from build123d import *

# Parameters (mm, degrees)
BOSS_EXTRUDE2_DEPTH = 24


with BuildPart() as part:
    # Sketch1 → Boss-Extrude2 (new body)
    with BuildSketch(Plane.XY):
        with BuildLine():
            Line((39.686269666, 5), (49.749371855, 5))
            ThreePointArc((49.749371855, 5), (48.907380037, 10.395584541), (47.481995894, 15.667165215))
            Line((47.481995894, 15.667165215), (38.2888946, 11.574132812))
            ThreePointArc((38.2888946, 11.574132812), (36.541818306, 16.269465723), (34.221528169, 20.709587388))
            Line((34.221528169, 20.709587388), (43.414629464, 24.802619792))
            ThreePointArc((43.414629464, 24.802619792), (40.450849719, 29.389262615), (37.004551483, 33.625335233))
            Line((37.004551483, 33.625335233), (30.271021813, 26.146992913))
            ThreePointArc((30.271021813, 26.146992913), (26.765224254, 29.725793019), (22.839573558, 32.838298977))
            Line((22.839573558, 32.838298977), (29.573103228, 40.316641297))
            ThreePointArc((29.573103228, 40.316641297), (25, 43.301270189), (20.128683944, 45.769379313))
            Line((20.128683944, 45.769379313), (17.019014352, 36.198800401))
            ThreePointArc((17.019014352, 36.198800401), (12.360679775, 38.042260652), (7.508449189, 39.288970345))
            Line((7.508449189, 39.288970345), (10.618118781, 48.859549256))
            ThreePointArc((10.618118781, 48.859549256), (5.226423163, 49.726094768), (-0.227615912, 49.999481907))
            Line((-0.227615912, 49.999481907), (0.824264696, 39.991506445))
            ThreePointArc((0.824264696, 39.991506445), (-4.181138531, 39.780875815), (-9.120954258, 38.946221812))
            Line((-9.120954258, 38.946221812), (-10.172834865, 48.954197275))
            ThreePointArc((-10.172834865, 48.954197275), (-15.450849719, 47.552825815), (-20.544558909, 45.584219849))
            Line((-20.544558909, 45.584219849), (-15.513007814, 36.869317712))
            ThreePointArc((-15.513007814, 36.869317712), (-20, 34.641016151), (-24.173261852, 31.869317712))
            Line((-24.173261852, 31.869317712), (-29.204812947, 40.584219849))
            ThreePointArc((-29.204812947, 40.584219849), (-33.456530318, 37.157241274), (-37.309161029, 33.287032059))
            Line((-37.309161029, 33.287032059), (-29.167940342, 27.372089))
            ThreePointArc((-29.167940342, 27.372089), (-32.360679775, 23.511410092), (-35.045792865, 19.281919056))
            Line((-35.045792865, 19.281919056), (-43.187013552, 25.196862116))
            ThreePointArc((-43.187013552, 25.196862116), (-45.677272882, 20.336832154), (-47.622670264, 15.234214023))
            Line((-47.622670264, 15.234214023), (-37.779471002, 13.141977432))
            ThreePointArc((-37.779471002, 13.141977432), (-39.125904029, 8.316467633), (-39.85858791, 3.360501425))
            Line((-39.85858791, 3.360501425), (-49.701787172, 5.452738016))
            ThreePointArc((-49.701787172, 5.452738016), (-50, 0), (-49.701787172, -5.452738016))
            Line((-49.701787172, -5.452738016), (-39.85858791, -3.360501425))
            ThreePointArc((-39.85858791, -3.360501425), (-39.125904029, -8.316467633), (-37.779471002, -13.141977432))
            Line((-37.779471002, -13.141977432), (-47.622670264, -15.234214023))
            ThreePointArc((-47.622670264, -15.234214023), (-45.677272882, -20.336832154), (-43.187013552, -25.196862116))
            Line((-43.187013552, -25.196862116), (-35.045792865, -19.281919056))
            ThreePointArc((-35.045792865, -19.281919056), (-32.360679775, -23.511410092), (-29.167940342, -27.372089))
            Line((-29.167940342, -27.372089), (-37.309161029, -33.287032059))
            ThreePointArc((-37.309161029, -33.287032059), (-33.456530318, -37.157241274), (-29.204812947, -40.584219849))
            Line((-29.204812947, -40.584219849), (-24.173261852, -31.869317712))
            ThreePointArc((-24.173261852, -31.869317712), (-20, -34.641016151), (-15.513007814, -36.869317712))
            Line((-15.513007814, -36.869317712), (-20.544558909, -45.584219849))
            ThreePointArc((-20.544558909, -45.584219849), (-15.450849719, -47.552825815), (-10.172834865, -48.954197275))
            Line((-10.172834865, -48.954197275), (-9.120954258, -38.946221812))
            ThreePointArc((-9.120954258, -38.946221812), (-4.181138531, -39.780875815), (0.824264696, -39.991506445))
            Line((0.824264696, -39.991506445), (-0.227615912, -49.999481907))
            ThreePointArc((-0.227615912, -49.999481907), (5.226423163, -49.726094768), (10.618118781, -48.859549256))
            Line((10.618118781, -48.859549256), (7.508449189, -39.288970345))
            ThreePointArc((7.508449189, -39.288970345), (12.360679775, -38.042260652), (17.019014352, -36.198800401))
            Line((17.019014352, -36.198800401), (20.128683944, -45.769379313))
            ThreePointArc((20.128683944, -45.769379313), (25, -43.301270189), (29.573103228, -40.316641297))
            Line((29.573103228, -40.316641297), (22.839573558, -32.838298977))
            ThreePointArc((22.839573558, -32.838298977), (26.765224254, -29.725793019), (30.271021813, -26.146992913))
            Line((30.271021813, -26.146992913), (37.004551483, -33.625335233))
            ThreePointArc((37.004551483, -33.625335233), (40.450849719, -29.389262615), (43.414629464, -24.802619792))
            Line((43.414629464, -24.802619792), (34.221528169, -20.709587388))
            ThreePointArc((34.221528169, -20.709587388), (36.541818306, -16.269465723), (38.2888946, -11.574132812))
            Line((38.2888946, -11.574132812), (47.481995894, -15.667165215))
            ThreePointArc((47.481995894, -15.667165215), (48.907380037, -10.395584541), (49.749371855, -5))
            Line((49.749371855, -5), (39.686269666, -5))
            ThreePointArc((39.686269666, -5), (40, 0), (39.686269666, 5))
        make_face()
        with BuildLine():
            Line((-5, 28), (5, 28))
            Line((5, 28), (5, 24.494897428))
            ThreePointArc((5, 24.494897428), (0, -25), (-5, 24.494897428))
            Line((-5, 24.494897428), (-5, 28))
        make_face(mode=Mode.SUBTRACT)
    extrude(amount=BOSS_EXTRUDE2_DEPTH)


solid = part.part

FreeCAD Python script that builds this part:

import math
import FreeCAD as App
import Part
import Sketcher

V = App.Vector
Q = App.Units.Quantity

doc = App.newDocument("Part")
body = doc.addObject("PartDesign::Body", "Body")

# Sketch on XY plane
sketch1 = body.newObject("Sketcher::SketchObject", "Sketch")
sketch1.AttachmentSupport = (doc.getObject("XY_Plane"), [""])
sketch1.MapMode = "FlatFace"
sketch1.addGeometry([
    Part.LineSegment(V(39.7, 5, 0), V(49.7, 5, 0)),  # 0
    Part.ArcOfCircle(Part.Circle(V(0, 0, 0), V(0, 0, 1), 50), math.radians(5.74), math.radians(18.26)),  # 1
    Part.LineSegment(V(47.5, 15.7, 0), V(38.3, 11.6, 0)),  # 2
    Part.ArcOfCircle(Part.Circle(V(0, 0, 0), V(0, 0, 1), 40), math.radians(16.82), math.radians(31.18)),  # 3
    Part.LineSegment(V(34.2, 20.7, 0), V(43.4, 24.8, 0)),  # 4
    Part.ArcOfCircle(Part.Circle(V(0, 0, 0), V(0, 0, 1), 50), math.radians(29.74), math.radians(42.26)),  # 5
    Part.LineSegment(V(37, 33.6, 0), V(30.3, 26.1, 0)),  # 6
    Part.ArcOfCircle(Part.Circle(V(0, 0, 0), V(0, 0, 1), 40), math.radians(40.82), math.radians(55.18)),  # 7
    Part.LineSegment(V(22.8, 32.8, 0), V(29.6, 40.3, 0)),  # 8
    Part.ArcOfCircle(Part.Circle(V(0, 0, 0), V(0, 0, 1), 50), math.radians(53.74), math.radians(66.26)),  # 9
    Part.LineSegment(V(20.1, 45.8, 0), V(17, 36.2, 0)),  # 10
    Part.ArcOfCircle(Part.Circle(V(0, 0, 0), V(0, 0, 1), 40), math.radians(64.82), math.radians(79.18)),  # 11
    Part.LineSegment(V(7.5, 39.3, 0), V(10.6, 48.9, 0)),  # 12
    Part.ArcOfCircle(Part.Circle(V(0, 0, 0), V(0, 0, 1), 50), math.radians(77.74), math.radians(90.26)),  # 13
    Part.LineSegment(V(-0.2, 50, 0), V(0.8, 40, 0)),  # 14
    Part.ArcOfCircle(Part.Circle(V(0, 0, 0), V(0, 0, 1), 40), math.radians(88.82), math.radians(103.18)),  # 15
    Part.LineSegment(V(-9.1, 38.9, 0), V(-10.2, 49, 0)),  # 16
    Part.ArcOfCircle(Part.Circle(V(0, 0, 0), V(0, 0, 1), 50), math.radians(101.74), math.radians(114.26)),  # 17
    Part.LineSegment(V(-20.5, 45.6, 0), V(-15.5, 36.9, 0)),  # 18
    Part.ArcOfCircle(Part.Circle(V(0, 0, 0), V(0, 0, 1), 40), math.radians(112.82), math.radians(127.18)),  # 19
    Part.LineSegment(V(-24.2, 31.9, 0), V(-29.2, 40.6, 0)),  # 20
    Part.ArcOfCircle(Part.Circle(V(0, 0, 0), V(0, 0, 1), 50), math.radians(125.74), math.radians(138.26)),  # 21
    Part.LineSegment(V(-37.3, 33.3, 0), V(-29.2, 27.4, 0)),  # 22
    Part.ArcOfCircle(Part.Circle(V(0, 0, 0), V(0, 0, 1), 40), math.radians(136.82), math.radians(151.18)),  # 23
    Part.LineSegment(V(-35, 19.3, 0), V(-43.2, 25.2, 0)),  # 24
    Part.ArcOfCircle(Part.Circle(V(0, 0, 0), V(0, 0, 1), 50), math.radians(149.74), math.radians(162.26)),  # 25
    Part.LineSegment(V(-47.6, 15.2, 0), V(-37.8, 13.1, 0)),  # 26
    Part.ArcOfCircle(Part.Circle(V(0, 0, 0), V(0, 0, 1), 40), math.radians(160.82), math.radians(175.18)),  # 27
    Part.LineSegment(V(-39.9, 3.4, 0), V(-49.7, 5.5, 0)),  # 28
    Part.ArcOfCircle(Part.Circle(V(0, 0, 0), V(0, 0, 1), 50), math.radians(173.74), math.radians(186.26)),  # 29
    Part.LineSegment(V(-49.7, -5.5, 0), V(-39.9, -3.4, 0)),  # 30
    Part.ArcOfCircle(Part.Circle(V(0, 0, 0), V(0, 0, 1), 40), math.radians(-175.18), math.radians(-160.82)),  # 31
    Part.LineSegment(V(-37.8, -13.1, 0), V(-47.6, -15.2, 0)),  # 32
    Part.ArcOfCircle(Part.Circle(V(0, 0, 0), V(0, 0, 1), 50), math.radians(-162.26), math.radians(-149.74)),  # 33
    Part.LineSegment(V(-43.2, -25.2, 0), V(-35, -19.3, 0)),  # 34
    Part.ArcOfCircle(Part.Circle(V(0, 0, 0), V(0, 0, 1), 40), math.radians(-151.18), math.radians(-136.82)),  # 35
    Part.LineSegment(V(-29.2, -27.4, 0), V(-37.3, -33.3, 0)),  # 36
    Part.ArcOfCircle(Part.Circle(V(0, 0, 0), V(0, 0, 1), 50), math.radians(-138.26), math.radians(-125.74)),  # 37
    Part.LineSegment(V(-29.2, -40.6, 0), V(-24.2, -31.9, 0)),  # 38
    Part.ArcOfCircle(Part.Circle(V(0, 0, 0), V(0, 0, 1), 40), math.radians(-127.18), math.radians(-112.82)),  # 39
    Part.LineSegment(V(-15.5, -36.9, 0), V(-20.5, -45.6, 0)),  # 40
    Part.ArcOfCircle(Part.Circle(V(0, 0, 0), V(0, 0, 1), 50), math.radians(-114.26), math.radians(-101.74)),  # 41
    Part.LineSegment(V(-10.2, -49, 0), V(-9.1, -38.9, 0)),  # 42
    Part.ArcOfCircle(Part.Circle(V(0, 0, 0), V(0, 0, 1), 40), math.radians(-103.18), math.radians(-88.82)),  # 43
    Part.LineSegment(V(0.8, -40, 0), V(-0.2, -50, 0)),  # 44
    Part.ArcOfCircle(Part.Circle(V(0, 0, 0), V(0, 0, 1), 50), math.radians(-90.26), math.radians(-77.74)),  # 45
    Part.LineSegment(V(10.6, -48.9, 0), V(7.5, -39.3, 0)),  # 46
    Part.ArcOfCircle(Part.Circle(V(0, 0, 0), V(0, 0, 1), 40), math.radians(-79.18), math.radians(-64.82)),  # 47
    Part.LineSegment(V(17, -36.2, 0), V(20.1, -45.8, 0)),  # 48
    Part.ArcOfCircle(Part.Circle(V(0, 0, 0), V(0, 0, 1), 50), math.radians(-66.26), math.radians(-53.74)),  # 49
    Part.LineSegment(V(29.6, -40.3, 0), V(22.8, -32.8, 0)),  # 50
    Part.ArcOfCircle(Part.Circle(V(0, 0, 0), V(0, 0, 1), 40), math.radians(-55.18), math.radians(-40.82)),  # 51
    Part.LineSegment(V(30.3, -26.1, 0), V(37, -33.6, 0)),  # 52
    Part.ArcOfCircle(Part.Circle(V(0, 0, 0), V(0, 0, 1), 50), math.radians(-42.26), math.radians(-29.74)),  # 53
    Part.LineSegment(V(43.4, -24.8, 0), V(34.2, -20.7, 0)),  # 54
    Part.ArcOfCircle(Part.Circle(V(0, 0, 0), V(0, 0, 1), 40), math.radians(-31.18), math.radians(-16.82)),  # 55
    Part.LineSegment(V(38.3, -11.6, 0), V(47.5, -15.7, 0)),  # 56
    Part.ArcOfCircle(Part.Circle(V(0, 0, 0), V(0, 0, 1), 50), math.radians(-18.26), math.radians(-5.74)),  # 57
    Part.LineSegment(V(49.7, -5, 0), V(39.7, -5, 0)),  # 58
    Part.ArcOfCircle(Part.Circle(V(0, 0, 0), V(0, 0, 1), 40), math.radians(-7.18), math.radians(7.18)),  # 59
    Part.LineSegment(V(-5, 24.5, 0), V(-5, 28, 0)),  # 60
    Part.LineSegment(V(-5, 28, 0), V(5, 28, 0)),  # 61
    Part.LineSegment(V(5, 28, 0), V(5, 24.5, 0)),  # 62
    Part.ArcOfCircle(Part.Circle(V(0, 0, 0), V(0, 0, 1), 25), math.radians(102), math.radians(438)),  # 63
], False)
sketch1.addConstraint([
    Sketcher.Constraint("Coincident", 0, 2, 1, 1),
    Sketcher.Constraint("Coincident", 1, 2, 2, 1),
    Sketcher.Constraint("Coincident", 2, 2, 3, 1),
    Sketcher.Constraint("Coincident", 3, 2, 4, 1),
    Sketcher.Constraint("Coincident", 4, 2, 5, 1),
    Sketcher.Constraint("Coincident", 5, 2, 6, 1),
    Sketcher.Constraint("Coincident", 6, 2, 7, 1),
    Sketcher.Constraint("Coincident", 7, 2, 8, 1),
    Sketcher.Constraint("Coincident", 8, 2, 9, 1),
    Sketcher.Constraint("Coincident", 9, 2, 10, 1),
    Sketcher.Constraint("Coincident", 10, 2, 11, 1),
    Sketcher.Constraint("Coincident", 11, 2, 12, 1),
    Sketcher.Constraint("Coincident", 12, 2, 13, 1),
    Sketcher.Constraint("Coincident", 13, 2, 14, 1),
    Sketcher.Constraint("Coincident", 14, 2, 15, 1),
    Sketcher.Constraint("Coincident", 15, 2, 16, 1),
    Sketcher.Constraint("Coincident", 16, 2, 17, 1),
    Sketcher.Constraint("Coincident", 17, 2, 18, 1),
    Sketcher.Constraint("Coincident", 18, 2, 19, 1),
    Sketcher.Constraint("Coincident", 19, 2, 20, 1),
    Sketcher.Constraint("Coincident", 20, 2, 21, 1),
    Sketcher.Constraint("Coincident", 21, 2, 22, 1),
    Sketcher.Constraint("Coincident", 22, 2, 23, 1),
    Sketcher.Constraint("Coincident", 23, 2, 24, 1),
    Sketcher.Constraint("Coincident", 24, 2, 25, 1),
    Sketcher.Constraint("Coincident", 25, 2, 26, 1),
    Sketcher.Constraint("Coincident", 26, 2, 27, 1),
    Sketcher.Constraint("Coincident", 27, 2, 28, 1),
    Sketcher.Constraint("Coincident", 28, 2, 29, 1),
    Sketcher.Constraint("Coincident", 29, 2, 30, 1),
    Sketcher.Constraint("Coincident", 30, 2, 31, 1),
    Sketcher.Constraint("Coincident", 31, 2, 32, 1),
    Sketcher.Constraint("Coincident", 32, 2, 33, 1),
    Sketcher.Constraint("Coincident", 33, 2, 34, 1),
    Sketcher.Constraint("Coincident", 34, 2, 35, 1),
    Sketcher.Constraint("Coincident", 35, 2, 36, 1),
    Sketcher.Constraint("Coincident", 36, 2, 37, 1),
    Sketcher.Constraint("Coincident", 37, 2, 38, 1),
    Sketcher.Constraint("Coincident", 38, 2, 39, 1),
    Sketcher.Constraint("Coincident", 39, 2, 40, 1),
    Sketcher.Constraint("Coincident", 40, 2, 41, 1),
    Sketcher.Constraint("Coincident", 41, 2, 42, 1),
    Sketcher.Constraint("Coincident", 42, 2, 43, 1),
    Sketcher.Constraint("Coincident", 43, 2, 44, 1),
    Sketcher.Constraint("Coincident", 44, 2, 45, 1),
    Sketcher.Constraint("Coincident", 45, 2, 46, 1),
    Sketcher.Constraint("Coincident", 46, 2, 47, 1),
    Sketcher.Constraint("Coincident", 47, 2, 48, 1),
    Sketcher.Constraint("Coincident", 48, 2, 49, 1),
    Sketcher.Constraint("Coincident", 49, 2, 50, 1),
    Sketcher.Constraint("Coincident", 50, 2, 51, 1),
    Sketcher.Constraint("Coincident", 51, 2, 52, 1),
    Sketcher.Constraint("Coincident", 52, 2, 53, 1),
    Sketcher.Constraint("Coincident", 53, 2, 54, 1),
    Sketcher.Constraint("Coincident", 54, 2, 55, 1),
    Sketcher.Constraint("Coincident", 55, 2, 56, 1),
    Sketcher.Constraint("Coincident", 56, 2, 57, 1),
    Sketcher.Constraint("Coincident", 57, 2, 58, 1),
    Sketcher.Constraint("Coincident", 58, 2, 59, 1),
    Sketcher.Constraint("Coincident", 59, 2, 0, 1),
    Sketcher.Constraint("Coincident", 60, 2, 61, 1),
    Sketcher.Constraint("Coincident", 61, 2, 62, 1),
    Sketcher.Constraint("Coincident", 62, 2, 63, 2),
    Sketcher.Constraint("Coincident", 63, 1, 60, 1),
    Sketcher.Constraint("Horizontal", 0),
    Sketcher.Constraint("Horizontal", 58),
    Sketcher.Constraint("Vertical", 60),
    Sketcher.Constraint("Horizontal", 61),
    Sketcher.Constraint("Vertical", 62),
    Sketcher.Constraint("Coincident", 1, 3, -1, 1),
    Sketcher.Constraint("Coincident", 3, 3, -1, 1),
    Sketcher.Constraint("Coincident", 5, 3, -1, 1),
    Sketcher.Constraint("Coincident", 7, 3, -1, 1),
    Sketcher.Constraint("Coincident", 9, 3, -1, 1),
    Sketcher.Constraint("Coincident", 11, 3, -1, 1),
    Sketcher.Constraint("Coincident", 13, 3, -1, 1),
    Sketcher.Constraint("Coincident", 15, 3, -1, 1),
    Sketcher.Constraint("Coincident", 17, 3, -1, 1),
    Sketcher.Constraint("Coincident", 19, 3, -1, 1),
    Sketcher.Constraint("Coincident", 21, 3, -1, 1),
    Sketcher.Constraint("Coincident", 23, 3, -1, 1),
    Sketcher.Constraint("Coincident", 25, 3, -1, 1),
    Sketcher.Constraint("Coincident", 27, 3, -1, 1),
    Sketcher.Constraint("Coincident", 29, 3, -1, 1),
    Sketcher.Constraint("Coincident", 31, 3, -1, 1),
    Sketcher.Constraint("Coincident", 33, 3, -1, 1),
    Sketcher.Constraint("Coincident", 35, 3, -1, 1),
    Sketcher.Constraint("Coincident", 37, 3, -1, 1),
    Sketcher.Constraint("Coincident", 39, 3, -1, 1),
    Sketcher.Constraint("Coincident", 41, 3, -1, 1),
    Sketcher.Constraint("Coincident", 43, 3, -1, 1),
    Sketcher.Constraint("Coincident", 45, 3, -1, 1),
    Sketcher.Constraint("Coincident", 47, 3, -1, 1),
    Sketcher.Constraint("Coincident", 49, 3, -1, 1),
    Sketcher.Constraint("Coincident", 51, 3, -1, 1),
    Sketcher.Constraint("Coincident", 53, 3, -1, 1),
    Sketcher.Constraint("Coincident", 55, 3, -1, 1),
    Sketcher.Constraint("Coincident", 57, 3, -1, 1),
    Sketcher.Constraint("Coincident", 59, 3, -1, 1),
    Sketcher.Constraint("Coincident", 63, 3, -1, 1),
    Sketcher.Constraint("Equal", 1, 5),
    Sketcher.Constraint("Equal", 3, 7),
    Sketcher.Constraint("Equal", 5, 9),
    Sketcher.Constraint("Equal", 7, 11),
    Sketcher.Constraint("Equal", 9, 13),
    Sketcher.Constraint("Equal", 11, 15),
    Sketcher.Constraint("Equal", 13, 17),
    Sketcher.Constraint("Equal", 15, 19),
    Sketcher.Constraint("Equal", 17, 21),
    Sketcher.Constraint("Equal", 19, 23),
    Sketcher.Constraint("Equal", 21, 25),
    Sketcher.Constraint("Equal", 23, 27),
    Sketcher.Constraint("Equal", 25, 29),
    Sketcher.Constraint("Equal", 27, 31),
    Sketcher.Constraint("Equal", 29, 33),
    Sketcher.Constraint("Equal", 31, 35),
    Sketcher.Constraint("Equal", 33, 37),
    Sketcher.Constraint("Equal", 35, 39),
    Sketcher.Constraint("Equal", 37, 41),
    Sketcher.Constraint("Equal", 39, 43),
    Sketcher.Constraint("Equal", 41, 45),
    Sketcher.Constraint("Equal", 43, 47),
    Sketcher.Constraint("Equal", 45, 49),
    Sketcher.Constraint("Equal", 47, 51),
    Sketcher.Constraint("Equal", 49, 53),
    Sketcher.Constraint("Equal", 51, 55),
    Sketcher.Constraint("Equal", 53, 57),
    Sketcher.Constraint("Equal", 55, 59),
    Sketcher.Constraint("Parallel", 2, 4),
    Sketcher.Constraint("Parallel", 6, 8),
    Sketcher.Constraint("Parallel", 10, 12),
    Sketcher.Constraint("Parallel", 14, 16),
    Sketcher.Constraint("Parallel", 18, 20),
    Sketcher.Constraint("Parallel", 22, 24),
    Sketcher.Constraint("Parallel", 26, 28),
    Sketcher.Constraint("Parallel", 30, 32),
    Sketcher.Constraint("Parallel", 34, 36),
    Sketcher.Constraint("Parallel", 38, 40),
    Sketcher.Constraint("Parallel", 42, 44),
    Sketcher.Constraint("Parallel", 46, 48),
    Sketcher.Constraint("Parallel", 50, 52),
    Sketcher.Constraint("Parallel", 54, 56),
    Sketcher.Constraint("Horizontal", 62, 2, 63, 1),
    Sketcher.Constraint("Vertical", 28, 2, 29, 2),
    Sketcher.Constraint("Vertical", 27, 2, 30, 2),
    Sketcher.Constraint("Vertical", 26, 2, 31, 2),
    Sketcher.Constraint("Vertical", 24, 2, 33, 2),
    Sketcher.Constraint("Vertical", 23, 2, 34, 2),
    Sketcher.Constraint("Vertical", 22, 2, 35, 2),
    Sketcher.Constraint("Vertical", 20, 2, 37, 2),
    Sketcher.Constraint("Vertical", 19, 2, 38, 2),
    Sketcher.Constraint("Vertical", 18, 2, 39, 2),
    Sketcher.Constraint("Vertical", 16, 2, 41, 2),
    Sketcher.Constraint("Vertical", 15, 2, 42, 2),
    Sketcher.Constraint("Vertical", 14, 2, 43, 2),
    Sketcher.Constraint("Vertical", 12, 2, 45, 2),
    Sketcher.Constraint("Vertical", 11, 2, 46, 2),
    Sketcher.Constraint("Vertical", 10, 2, 47, 2),
    Sketcher.Constraint("Vertical", 8, 2, 49, 2),
    Sketcher.Constraint("Vertical", 7, 2, 50, 2),
    Sketcher.Constraint("Vertical", 6, 2, 51, 2),
    Sketcher.Constraint("Vertical", 4, 2, 53, 2),
    Sketcher.Constraint("Vertical", 3, 2, 54, 2),
    Sketcher.Constraint("Vertical", 2, 2, 55, 2),
    Sketcher.Constraint("Vertical", 0, 2, 57, 2),
    Sketcher.Constraint("Equal", 2, 4),
    Sketcher.Constraint("Equal", 4, 6),
    Sketcher.Constraint("Equal", 6, 8),
    Sketcher.Constraint("Equal", 8, 10),
    Sketcher.Constraint("Equal", 10, 12),
    Sketcher.Constraint("Equal", 12, 14),
    Sketcher.Constraint("Equal", 14, 16),
    Sketcher.Constraint("Equal", 16, 18),
    Sketcher.Constraint("Equal", 18, 20),
    Sketcher.Constraint("Equal", 20, 22),
    Sketcher.Constraint("Equal", 22, 24),
    Sketcher.Constraint("Equal", 24, 26),
    Sketcher.Constraint("Equal", 26, 28),
    Sketcher.Constraint("Radius", 1, Q("50 mm")),
    Sketcher.Constraint("Radius", 3, Q("40 mm")),
    Sketcher.Constraint("Radius", 63, Q("25 mm")),
    Sketcher.Constraint("DistanceX", 61, 1, 61, 2, Q("10 mm")),
    Sketcher.Constraint("Angle", 2, Q("-156 deg")),
    Sketcher.Constraint("Angle", 6, Q("-132 deg")),
    Sketcher.Constraint("Angle", 10, Q("-108 deg")),
    Sketcher.Constraint("Angle", 14, Q("-84 deg")),
    Sketcher.Constraint("Angle", 18, Q("-60 deg")),
    Sketcher.Constraint("Angle", 22, Q("-36 deg")),
    Sketcher.Constraint("Angle", 26, Q("-12 deg")),
    Sketcher.Constraint("DistanceY", -1, 1, 0, 2, Q("5 mm")),
    Sketcher.Constraint("DistanceY", -1, 1, 60, 2, Q("28 mm")),
    Sketcher.Constraint("DistanceY", -1, 1, 7, 2, Q("32.838299 mm")),
])
pad1 = body.newObject("PartDesign::Pad", "Pad")
pad1.Profile = sketch1
pad1.Length = 24

doc.recompute()
